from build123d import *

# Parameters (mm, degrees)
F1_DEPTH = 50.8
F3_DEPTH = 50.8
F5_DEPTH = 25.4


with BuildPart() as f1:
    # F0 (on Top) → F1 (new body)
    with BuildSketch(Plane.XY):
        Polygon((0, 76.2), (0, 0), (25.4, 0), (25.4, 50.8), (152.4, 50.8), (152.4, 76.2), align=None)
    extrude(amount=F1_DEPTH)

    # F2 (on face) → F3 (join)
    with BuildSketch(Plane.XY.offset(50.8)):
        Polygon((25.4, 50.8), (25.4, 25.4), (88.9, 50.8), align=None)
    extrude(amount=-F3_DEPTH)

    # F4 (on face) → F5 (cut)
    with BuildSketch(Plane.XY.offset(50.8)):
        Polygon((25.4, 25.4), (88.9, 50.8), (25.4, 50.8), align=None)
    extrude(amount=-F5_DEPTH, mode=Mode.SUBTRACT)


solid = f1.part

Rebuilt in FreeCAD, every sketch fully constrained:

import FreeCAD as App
import Part
import Sketcher
Q = App.Units.Quantity

doc = App.newDocument("Part")
body = doc.addObject("PartDesign::Body", "Body")

sketch1 = doc.addObject("Sketcher::SketchObject", "Sketch")
body.addObject(sketch1)
sketch1.AttachmentSupport = (doc.XY_Plane, [""])
sketch1.MapMode = "FlatFace"
sketch1.addGeometry([
    Part.LineSegment(App.Vector(0, 76, 0), App.Vector(0, 0, 0)),
    Part.LineSegment(App.Vector(0, 0, 0), App.Vector(25, 0, 0)),
    Part.LineSegment(App.Vector(25, 0, 0), App.Vector(25, 51, 0)),
    Part.LineSegment(App.Vector(25, 51, 0), App.Vector(152, 51, 0)),
    Part.LineSegment(App.Vector(152, 51, 0), App.Vector(152, 76, 0)),
    Part.LineSegment(App.Vector(152, 76, 0), App.Vector(0, 76, 0)),
], False)
sketch1.addConstraint([
    Sketcher.Constraint("Coincident", 0, 2, 1, 1),
    Sketcher.Constraint("Coincident", 1, 2, 2, 1),
    Sketcher.Constraint("Coincident", 2, 2, 3, 1),
    Sketcher.Constraint("Coincident", 3, 2, 4, 1),
    Sketcher.Constraint("Coincident", 4, 2, 5, 1),
    Sketcher.Constraint("Coincident", 5, 2, 0, 1),
    Sketcher.Constraint("Vertical", 0),
    Sketcher.Constraint("Horizontal", 1),
    Sketcher.Constraint("Vertical", 2),
    Sketcher.Constraint("Horizontal", 3),
    Sketcher.Constraint("Vertical", 4),
    Sketcher.Constraint("Horizontal", 5),
    Sketcher.Constraint("Coincident", 0, 2, -1, 1),
    Sketcher.Constraint("Equal", 1, 4),
    Sketcher.Constraint("DistanceX", 1, 1, 1, 2, Q("1 in")),
    Sketcher.Constraint("DistanceX", 3, 1, 3, 2, Q("5 in")),
    Sketcher.Constraint("DistanceY", 0, 2, 0, 1, Q("3 in")),
])
pad1 = doc.addObject("PartDesign::Pad", "Pad")
body.addObject(pad1)
pad1.Profile = sketch1
pad1.Length = Q("2 in")

sketch2 = doc.addObject("Sketcher::SketchObject", "Sketch001")
body.addObject(sketch2)
sketch2.AttachmentSupport = (doc.XY_Plane, [""])
sketch2.MapMode = "FlatFace"
sketch2.AttachmentOffset = App.Placement(App.Vector(0, 0, 2 * 25.4), App.Rotation())
sketch2.addGeometry([
    Part.LineSegment(App.Vector(25, 51, 0), App.Vector(25, 25, 0)),
    Part.LineSegment(App.Vector(25, 25, 0), App.Vector(89, 51, 0)),
    Part.LineSegment(App.Vector(89, 51, 0), App.Vector(25, 51, 0)),
], False)
sketch2.addConstraint([
    Sketcher.Constraint("Coincident", 0, 2, 1, 1),
    Sketcher.Constraint("Coincident", 1, 2, 2, 1),
    Sketcher.Constraint("Coincident", 2, 2, 0, 1),
    Sketcher.Constraint("Vertical", 0),
    Sketcher.Constraint("Horizontal", 2),
    Sketcher.Constraint("DistanceY", 0, 2, 0, 1, Q("1 in")),
    Sketcher.Constraint("DistanceX", 2, 2, 2, 1, Q("2.5 in")),
    Sketcher.Constraint("DistanceX", -1, 1, 0, 2, Q("1 in")),
    Sketcher.Constraint("DistanceY", -1, 1, 0, 2, Q("1 in")),
])
pad2 = doc.addObject("PartDesign::Pad", "Pad001")
body.addObject(pad2)
pad2.Profile = sketch2
pad2.Length = Q("2 in")
pad2.Reversed = True

sketch3 = doc.addObject("Sketcher::SketchObject", "Sketch002")
body.addObject(sketch3)
sketch3.AttachmentSupport = (doc.XY_Plane, [""])
sketch3.MapMode = "FlatFace"
sketch3.AttachmentOffset = App.Placement(App.Vector(0, 0, 2 * 25.4), App.Rotation())
sketch3.addGeometry([
    Part.LineSegment(App.Vector(25, 25, 0), App.Vector(89, 51, 0)),
    Part.LineSegment(App.Vector(89, 51, 0), App.Vector(25, 51, 0)),
    Part.LineSegment(App.Vector(25, 51, 0), App.Vector(25, 25, 0)),
], False)
sketch3.addConstraint([
    Sketcher.Constraint("Coincident", 0, 2, 1, 1),
    Sketcher.Constraint("Coincident", 1, 2, 2, 1),
    Sketcher.Constraint("Coincident", 2, 2, 0, 1),
    Sketcher.Constraint("Horizontal", 1),
    Sketcher.Constraint("Vertical", 2),
    Sketcher.Constraint("DistanceY", 2, 2, 2, 1, Q("1 in")),
    Sketcher.Constraint("DistanceX", 1, 2, 1, 1, Q("2.5 in")),
    Sketcher.Constraint("DistanceY", -1, 1, 0, 2, Q("2 in")),
    Sketcher.Constraint("DistanceX", -1, 1, 1, 2, Q("1 in")),
])
pocket1 = doc.addObject("PartDesign::Pocket", "Pocket")
body.addObject(pocket1)
pocket1.Profile = sketch3
pocket1.Length = Q("1 in")

doc.recompute()
